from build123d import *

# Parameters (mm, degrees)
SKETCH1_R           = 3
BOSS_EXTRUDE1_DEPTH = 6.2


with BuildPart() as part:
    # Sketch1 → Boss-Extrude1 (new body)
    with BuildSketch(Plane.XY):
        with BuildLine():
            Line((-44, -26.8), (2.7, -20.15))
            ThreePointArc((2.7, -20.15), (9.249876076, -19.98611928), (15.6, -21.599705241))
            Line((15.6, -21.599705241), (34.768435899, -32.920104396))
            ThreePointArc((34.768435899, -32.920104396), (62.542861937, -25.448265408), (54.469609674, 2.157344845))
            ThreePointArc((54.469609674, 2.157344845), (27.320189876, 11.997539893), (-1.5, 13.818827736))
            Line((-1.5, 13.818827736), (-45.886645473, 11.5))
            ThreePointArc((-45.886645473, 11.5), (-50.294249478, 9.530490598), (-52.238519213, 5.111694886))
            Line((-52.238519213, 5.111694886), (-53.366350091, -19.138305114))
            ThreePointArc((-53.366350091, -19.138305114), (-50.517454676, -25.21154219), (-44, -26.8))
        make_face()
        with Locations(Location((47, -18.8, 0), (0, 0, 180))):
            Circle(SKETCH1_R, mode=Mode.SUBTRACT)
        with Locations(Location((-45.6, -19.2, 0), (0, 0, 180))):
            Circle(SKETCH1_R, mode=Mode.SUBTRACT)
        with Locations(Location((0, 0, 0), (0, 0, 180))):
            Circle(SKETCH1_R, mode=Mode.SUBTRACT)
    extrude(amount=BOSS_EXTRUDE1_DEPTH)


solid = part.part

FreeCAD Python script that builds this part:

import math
import FreeCAD as App
import Part
import Sketcher
Q = App.Units.Quantity

doc = App.newDocument("Part")
params = doc.addObject("Spreadsheet::Sheet", "Params")
for row, (alias, value) in enumerate([
    ("sketch1_diameter", "6 mm"),
    ("sketch1_diameter2", "6 mm"),
    ("sketch1_diameter3", "6 mm"),
    ("sketch1_radius", "24 mm"),
    ("pad1_length", "6.2 mm"),
], start=1):
    params.set(f"A{row}", alias)
    params.set(f"B{row}", "=" + value)
    params.setAlias(f"B{row}", alias)

body = doc.addObject("PartDesign::Body", "Body")

sketch1 = body.newObject("Sketcher::SketchObject", "Sketch")
sketch1.AttachmentSupport = (doc.getObject("XY_Plane"), [""])
sketch1.MapMode = "FlatFace"
sketch1.addGeometry(Part.LineSegment(App.Vector(-44, -26.8, 0), App.Vector(2.7, -20.15, 0)), False)
sketch1.addGeometry(Part.ArcOfCircle(Part.Circle(App.Vector(6.569622, -43.835988, 0), App.Vector(0, 0, 1), 24), math.radians(67.897434), math.radians(99.278543)), False)
sketch1.addGeometry(Part.LineSegment(App.Vector(15.6, -21.599705, 0), App.Vector(34.768436, -32.920104, 0)), False)
sketch1.addGeometry(Part.ArcOfCircle(Part.Circle(App.Vector(45, -15.595355, 0), App.Vector(0, 0, 1), 20.120434), math.radians(-120.565037), math.radians(61.923736)), False)
sketch1.addGeometry(Part.ArcOfCircle(Part.Circle(App.Vector(6.554069, -87.670033, 0), App.Vector(0, 0, 1), 101.807941), math.radians(61.923736), math.radians(94.537434)), False)
sketch1.addGeometry(Part.LineSegment(App.Vector(-1.5, 13.818828, 0), App.Vector(-45.886645, 11.5, 0)), False)
sketch1.addGeometry(Part.ArcOfCircle(Part.Circle(App.Vector(-45.536627, 4.8, 0), App.Vector(0, 0, 1), 6.709137), math.radians(92.990503), math.radians(177.337179)), False)
sketch1.addGeometry(Part.LineSegment(App.Vector(-52.238519, 5.111695, 0), App.Vector(-53.36635, -19.138305, 0)), False)
sketch1.addGeometry(Part.ArcOfCircle(Part.Circle(App.Vector(-45.6, -19.2, 0), App.Vector(0, 0, 1), 7.766595), math.radians(179.544859), math.radians(281.888658)), False)
sketch1.addGeometry(Part.Circle(App.Vector(-45.6, -19.2, 0), App.Vector(0, 0, 1), 3), False)
sketch1.addGeometry(Part.Circle(App.Vector(47, -18.8, 0), App.Vector(0, 0, 1), 3), False)
sketch1.addGeometry(Part.Circle(App.Vector(0, 0, 0), App.Vector(0, 0, 1), 3), False)
sketch1.addConstraint(Sketcher.Constraint("Coincident", 0, 2, 1, 2))
sketch1.addConstraint(Sketcher.Constraint("Coincident", 1, 1, 2, 1))
sketch1.addConstraint(Sketcher.Constraint("Coincident", 2, 2, 3, 1))
sketch1.addConstraint(Sketcher.Constraint("Coincident", 3, 2, 4, 1))
sketch1.addConstraint(Sketcher.Constraint("Coincident", 4, 2, 5, 1))
sketch1.addConstraint(Sketcher.Constraint("Coincident", 5, 2, 6, 1))
sketch1.addConstraint(Sketcher.Constraint("Coincident", 6, 2, 7, 1))
sketch1.addConstraint(Sketcher.Constraint("Coincident", 7, 2, 8, 1))
sketch1.addConstraint(Sketcher.Constraint("Coincident", 8, 2, 0, 1))
sketch1.addConstraint(Sketcher.Constraint("Coincident", 11, 3, -1, 1))
sketch1.addConstraint(Sketcher.Constraint("Coincident", 9, 3, 8, 3))
sketch1.addConstraint(Sketcher.Constraint("Diameter", 9, Q("6 mm")))
sketch1.addConstraint(Sketcher.Constraint("Diameter", 10, Q("6 mm")))
sketch1.addConstraint(Sketcher.Constraint("Diameter", 11, Q("6 mm")))
sketch1.addConstraint(Sketcher.Constraint("Radius", 1, Q("24 mm")))
sketch1.addConstraint(Sketcher.Constraint("DistanceX", -1, 1, 3, 3, Q("45 mm")))
sketch1.addConstraint(Sketcher.Constraint("DistanceX", -1, 1, 10, 3, Q("47 mm")))
sketch1.addConstraint(Sketcher.Constraint("DistanceX", 8, 2, -1, 1, Q("44 mm")))
sketch1.addConstraint(Sketcher.Constraint("DistanceY", 8, 3, 6, 3, Q("24 mm")))
sketch1.addConstraint(Sketcher.Constraint("DistanceY", -1, 1, 6, 3, Q("4.8 mm")))
sketch1.addConstraint(Sketcher.Constraint("DistanceX", 8, 3, -1, 1, Q("45.6 mm")))
sketch1.addConstraint(Sketcher.Constraint("DistanceY", 10, 3, -1, 1, Q("18.8 mm")))
sketch1.addConstraint(Sketcher.Constraint("DistanceX", -1, 1, 0, 2, Q("2.7 mm")))
sketch1.addConstraint(Sketcher.Constraint("DistanceX", -1, 1, 1, 1, Q("15.6 mm")))
sketch1.addConstraint(Sketcher.Constraint("DistanceX", 4, 2, -1, 1, Q("1.5 mm")))
sketch1.addConstraint(Sketcher.Constraint("DistanceY", -1, 1, 5, 2, Q("11.5 mm")))
sketch1.addConstraint(Sketcher.Constraint("DistanceY", 8, 2, -1, 1, Q("26.8 mm")))
sketch1.addConstraint(Sketcher.Constraint("DistanceY", 0, 2, -1, 1, Q("20.15 mm")))
sketch1.addConstraint(Sketcher.Constraint("Radius", 4, Q("101.807941 mm")))
sketch1.addConstraint(Sketcher.Constraint("DistanceY", 7, 2, 6, 2, Q("24.25 mm")))
sketch1.addConstraint(Sketcher.Constraint("Radius", 3, Q("20.120434 mm")))
sketch1.addConstraint(Sketcher.Constraint("Radius", 6, Q("6.709137 mm")))
sketch1.addConstraint(Sketcher.Constraint("DistanceY", 2, 2, 1, 1, Q("11.320399 mm")))
sketch1.addConstraint(Sketcher.Constraint("DistanceY", 3, 3, 3, 2, Q("17.7527 mm")))
sketch1.addConstraint(Sketcher.Constraint("DistanceX", -1, 1, 1, 3, Q("6.569622 mm")))
sketch1.addConstraint(Sketcher.Constraint("DistanceX", -1, 1, 4, 3, Q("6.554069 mm")))
sketch1.addConstraint(Sketcher.Constraint("DistanceX", 6, 2, -1, 1, Q("52.238519 mm")))
sketch1.addConstraint(Sketcher.Constraint("DistanceX", 7, 2, -1, 1, Q("53.36635 mm")))
sketch1.addConstraint(Sketcher.Constraint("DistanceY", 1, 1, 3, 3, Q("6.00435 mm")))
sketch1.setExpression("Constraints[11]", "Params.sketch1_diameter")
sketch1.setExpression("Constraints[12]", "Params.sketch1_diameter2")
sketch1.setExpression("Constraints[13]", "Params.sketch1_diameter3")
sketch1.setExpression("Constraints[14]", "Params.sketch1_radius")
pad1 = body.newObject("PartDesign::Pad", "Pad")
pad1.Profile = sketch1
pad1.setExpression("Length", "Params.pad1_length")

doc.recompute()
